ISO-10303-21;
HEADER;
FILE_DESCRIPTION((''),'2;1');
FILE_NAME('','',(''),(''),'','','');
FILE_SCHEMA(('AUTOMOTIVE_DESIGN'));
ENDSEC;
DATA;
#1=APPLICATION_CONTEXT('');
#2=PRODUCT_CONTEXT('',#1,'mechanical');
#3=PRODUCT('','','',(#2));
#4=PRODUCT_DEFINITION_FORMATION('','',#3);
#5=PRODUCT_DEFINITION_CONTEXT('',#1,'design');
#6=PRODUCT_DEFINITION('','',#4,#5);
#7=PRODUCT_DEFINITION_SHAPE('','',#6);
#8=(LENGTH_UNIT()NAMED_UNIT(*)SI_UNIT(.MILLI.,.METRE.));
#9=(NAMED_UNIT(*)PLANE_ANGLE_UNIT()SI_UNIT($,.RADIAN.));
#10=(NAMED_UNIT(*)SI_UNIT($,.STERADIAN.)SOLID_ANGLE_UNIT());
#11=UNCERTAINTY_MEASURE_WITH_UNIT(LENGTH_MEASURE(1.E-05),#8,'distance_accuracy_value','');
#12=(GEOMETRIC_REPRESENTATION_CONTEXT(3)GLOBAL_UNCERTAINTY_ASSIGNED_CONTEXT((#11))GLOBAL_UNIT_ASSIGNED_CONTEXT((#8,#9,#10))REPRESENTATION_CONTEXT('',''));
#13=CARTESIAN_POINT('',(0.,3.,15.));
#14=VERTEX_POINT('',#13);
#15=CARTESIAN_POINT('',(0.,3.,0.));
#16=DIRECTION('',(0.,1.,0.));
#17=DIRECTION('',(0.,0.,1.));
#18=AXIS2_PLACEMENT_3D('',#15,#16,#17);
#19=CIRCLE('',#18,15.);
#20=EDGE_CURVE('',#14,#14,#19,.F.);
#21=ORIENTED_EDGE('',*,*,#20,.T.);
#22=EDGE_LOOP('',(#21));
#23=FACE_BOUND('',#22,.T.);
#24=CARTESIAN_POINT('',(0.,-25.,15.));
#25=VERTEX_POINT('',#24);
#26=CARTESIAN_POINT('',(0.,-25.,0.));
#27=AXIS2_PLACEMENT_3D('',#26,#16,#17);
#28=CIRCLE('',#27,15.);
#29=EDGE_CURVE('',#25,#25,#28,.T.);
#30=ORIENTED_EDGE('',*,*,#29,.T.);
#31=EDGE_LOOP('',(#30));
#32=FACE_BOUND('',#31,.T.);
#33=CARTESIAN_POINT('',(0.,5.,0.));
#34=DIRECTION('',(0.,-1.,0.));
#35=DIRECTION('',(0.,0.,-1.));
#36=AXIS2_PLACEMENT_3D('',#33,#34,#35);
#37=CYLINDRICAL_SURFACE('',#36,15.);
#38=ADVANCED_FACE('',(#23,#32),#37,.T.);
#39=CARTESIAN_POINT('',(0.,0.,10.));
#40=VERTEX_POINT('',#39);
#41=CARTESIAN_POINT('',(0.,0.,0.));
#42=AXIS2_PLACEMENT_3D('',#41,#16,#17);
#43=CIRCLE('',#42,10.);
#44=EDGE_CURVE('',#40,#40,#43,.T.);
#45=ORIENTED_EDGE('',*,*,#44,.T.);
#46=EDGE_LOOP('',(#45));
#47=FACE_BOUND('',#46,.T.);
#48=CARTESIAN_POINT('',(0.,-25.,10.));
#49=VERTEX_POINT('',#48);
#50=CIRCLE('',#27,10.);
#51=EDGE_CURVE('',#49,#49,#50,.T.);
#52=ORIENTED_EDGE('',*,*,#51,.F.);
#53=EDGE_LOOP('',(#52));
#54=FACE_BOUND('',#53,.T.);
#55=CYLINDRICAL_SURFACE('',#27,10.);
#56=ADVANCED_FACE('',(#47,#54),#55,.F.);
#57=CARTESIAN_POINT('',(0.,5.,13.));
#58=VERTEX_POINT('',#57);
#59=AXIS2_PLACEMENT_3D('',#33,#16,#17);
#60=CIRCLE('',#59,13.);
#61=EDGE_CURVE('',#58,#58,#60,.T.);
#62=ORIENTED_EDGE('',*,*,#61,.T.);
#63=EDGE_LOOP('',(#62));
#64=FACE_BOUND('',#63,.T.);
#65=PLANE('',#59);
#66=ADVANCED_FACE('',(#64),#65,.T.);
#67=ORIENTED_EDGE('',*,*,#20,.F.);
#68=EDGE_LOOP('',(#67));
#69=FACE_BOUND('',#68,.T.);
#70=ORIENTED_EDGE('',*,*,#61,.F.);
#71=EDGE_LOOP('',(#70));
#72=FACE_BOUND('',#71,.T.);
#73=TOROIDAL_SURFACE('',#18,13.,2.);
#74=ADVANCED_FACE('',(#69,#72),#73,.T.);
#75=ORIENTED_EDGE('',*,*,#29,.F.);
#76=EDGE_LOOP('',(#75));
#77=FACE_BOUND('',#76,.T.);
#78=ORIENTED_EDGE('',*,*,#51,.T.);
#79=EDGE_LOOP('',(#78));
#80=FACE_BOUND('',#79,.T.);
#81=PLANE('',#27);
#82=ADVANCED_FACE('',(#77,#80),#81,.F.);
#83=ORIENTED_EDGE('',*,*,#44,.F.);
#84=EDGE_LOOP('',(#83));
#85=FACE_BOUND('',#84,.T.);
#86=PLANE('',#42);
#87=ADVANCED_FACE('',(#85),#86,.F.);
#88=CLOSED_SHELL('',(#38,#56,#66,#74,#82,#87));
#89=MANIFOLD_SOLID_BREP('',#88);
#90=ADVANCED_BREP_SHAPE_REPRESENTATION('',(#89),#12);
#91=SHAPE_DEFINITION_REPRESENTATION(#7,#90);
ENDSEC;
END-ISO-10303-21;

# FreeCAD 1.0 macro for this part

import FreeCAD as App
import Part
import Sketcher
Q = App.Units.Quantity


def edges_at(feature, points):
    """Names of the edges that pass closest to the given points."""
    edges = feature.Shape.Edges
    near = lambda p: min(range(len(edges)), key=lambda i: edges[i].distToShape(Part.Vertex(*p))[0])
    return sorted({f"Edge{near(p) + 1}" for p in points})

doc = App.newDocument("Part")
body = doc.addObject("PartDesign::Body", "Body")

# Sketch on XZ plane
sketch1 = doc.addObject("Sketcher::SketchObject", "Sketch")
body.addObject(sketch1)
sketch1.AttachmentSupport = (doc.XZ_Plane, [""])
sketch1.MapMode = "FlatFace"
sketch1.addGeometry(Part.Circle(App.Vector(0, 0, 0), App.Vector(0, 0, 1), 15), False)
sketch1.addConstraint(Sketcher.Constraint("Coincident", 0, 3, -1, 1))
sketch1.addConstraint(Sketcher.Constraint("Diameter", 0, Q("30 mm")))
pad1 = doc.addObject("PartDesign::Pad", "Pad")
body.addObject(pad1)
pad1.Profile = sketch1
pad1.Length = 5
pad1.Reversed = True

# Sketch on XZ plane
sketch2 = doc.addObject("Sketcher::SketchObject", "Sketch001")
body.addObject(sketch2)
sketch2.AttachmentSupport = (doc.XZ_Plane, [""])
sketch2.MapMode = "FlatFace"
sketch2.AttachmentOffset = App.Placement(App.Vector(0, 0, 25), App.Rotation())
sketch2.addGeometry(Part.Circle(App.Vector(0, 0, 0), App.Vector(0, 0, 1), 15), False)
sketch2.addGeometry(Part.Circle(App.Vector(0, 0, 0), App.Vector(0, 0, 1), 10), False)
sketch2.addConstraint(Sketcher.Constraint("Coincident", 0, 3, -1, 1))
sketch2.addConstraint(Sketcher.Constraint("Coincident", 1, 3, -1, 1))
sketch2.addConstraint(Sketcher.Constraint("Diameter", 0, Q("30 mm")))
sketch2.addConstraint(Sketcher.Constraint("Diameter", 1, Q("20 mm")))
pad2 = doc.addObject("PartDesign::Pad", "Pad001")
body.addObject(pad2)
pad2.Profile = sketch2
pad2.Length = 25
pad2.Reversed = True
doc.recompute()

fillet = doc.addObject("PartDesign::Fillet", "Fillet")
body.addObject(fillet)
fillet.Base = (pad2, edges_at(pad2, [(0, 5, -15)]))
fillet.Radius = 2

doc.recompute()
